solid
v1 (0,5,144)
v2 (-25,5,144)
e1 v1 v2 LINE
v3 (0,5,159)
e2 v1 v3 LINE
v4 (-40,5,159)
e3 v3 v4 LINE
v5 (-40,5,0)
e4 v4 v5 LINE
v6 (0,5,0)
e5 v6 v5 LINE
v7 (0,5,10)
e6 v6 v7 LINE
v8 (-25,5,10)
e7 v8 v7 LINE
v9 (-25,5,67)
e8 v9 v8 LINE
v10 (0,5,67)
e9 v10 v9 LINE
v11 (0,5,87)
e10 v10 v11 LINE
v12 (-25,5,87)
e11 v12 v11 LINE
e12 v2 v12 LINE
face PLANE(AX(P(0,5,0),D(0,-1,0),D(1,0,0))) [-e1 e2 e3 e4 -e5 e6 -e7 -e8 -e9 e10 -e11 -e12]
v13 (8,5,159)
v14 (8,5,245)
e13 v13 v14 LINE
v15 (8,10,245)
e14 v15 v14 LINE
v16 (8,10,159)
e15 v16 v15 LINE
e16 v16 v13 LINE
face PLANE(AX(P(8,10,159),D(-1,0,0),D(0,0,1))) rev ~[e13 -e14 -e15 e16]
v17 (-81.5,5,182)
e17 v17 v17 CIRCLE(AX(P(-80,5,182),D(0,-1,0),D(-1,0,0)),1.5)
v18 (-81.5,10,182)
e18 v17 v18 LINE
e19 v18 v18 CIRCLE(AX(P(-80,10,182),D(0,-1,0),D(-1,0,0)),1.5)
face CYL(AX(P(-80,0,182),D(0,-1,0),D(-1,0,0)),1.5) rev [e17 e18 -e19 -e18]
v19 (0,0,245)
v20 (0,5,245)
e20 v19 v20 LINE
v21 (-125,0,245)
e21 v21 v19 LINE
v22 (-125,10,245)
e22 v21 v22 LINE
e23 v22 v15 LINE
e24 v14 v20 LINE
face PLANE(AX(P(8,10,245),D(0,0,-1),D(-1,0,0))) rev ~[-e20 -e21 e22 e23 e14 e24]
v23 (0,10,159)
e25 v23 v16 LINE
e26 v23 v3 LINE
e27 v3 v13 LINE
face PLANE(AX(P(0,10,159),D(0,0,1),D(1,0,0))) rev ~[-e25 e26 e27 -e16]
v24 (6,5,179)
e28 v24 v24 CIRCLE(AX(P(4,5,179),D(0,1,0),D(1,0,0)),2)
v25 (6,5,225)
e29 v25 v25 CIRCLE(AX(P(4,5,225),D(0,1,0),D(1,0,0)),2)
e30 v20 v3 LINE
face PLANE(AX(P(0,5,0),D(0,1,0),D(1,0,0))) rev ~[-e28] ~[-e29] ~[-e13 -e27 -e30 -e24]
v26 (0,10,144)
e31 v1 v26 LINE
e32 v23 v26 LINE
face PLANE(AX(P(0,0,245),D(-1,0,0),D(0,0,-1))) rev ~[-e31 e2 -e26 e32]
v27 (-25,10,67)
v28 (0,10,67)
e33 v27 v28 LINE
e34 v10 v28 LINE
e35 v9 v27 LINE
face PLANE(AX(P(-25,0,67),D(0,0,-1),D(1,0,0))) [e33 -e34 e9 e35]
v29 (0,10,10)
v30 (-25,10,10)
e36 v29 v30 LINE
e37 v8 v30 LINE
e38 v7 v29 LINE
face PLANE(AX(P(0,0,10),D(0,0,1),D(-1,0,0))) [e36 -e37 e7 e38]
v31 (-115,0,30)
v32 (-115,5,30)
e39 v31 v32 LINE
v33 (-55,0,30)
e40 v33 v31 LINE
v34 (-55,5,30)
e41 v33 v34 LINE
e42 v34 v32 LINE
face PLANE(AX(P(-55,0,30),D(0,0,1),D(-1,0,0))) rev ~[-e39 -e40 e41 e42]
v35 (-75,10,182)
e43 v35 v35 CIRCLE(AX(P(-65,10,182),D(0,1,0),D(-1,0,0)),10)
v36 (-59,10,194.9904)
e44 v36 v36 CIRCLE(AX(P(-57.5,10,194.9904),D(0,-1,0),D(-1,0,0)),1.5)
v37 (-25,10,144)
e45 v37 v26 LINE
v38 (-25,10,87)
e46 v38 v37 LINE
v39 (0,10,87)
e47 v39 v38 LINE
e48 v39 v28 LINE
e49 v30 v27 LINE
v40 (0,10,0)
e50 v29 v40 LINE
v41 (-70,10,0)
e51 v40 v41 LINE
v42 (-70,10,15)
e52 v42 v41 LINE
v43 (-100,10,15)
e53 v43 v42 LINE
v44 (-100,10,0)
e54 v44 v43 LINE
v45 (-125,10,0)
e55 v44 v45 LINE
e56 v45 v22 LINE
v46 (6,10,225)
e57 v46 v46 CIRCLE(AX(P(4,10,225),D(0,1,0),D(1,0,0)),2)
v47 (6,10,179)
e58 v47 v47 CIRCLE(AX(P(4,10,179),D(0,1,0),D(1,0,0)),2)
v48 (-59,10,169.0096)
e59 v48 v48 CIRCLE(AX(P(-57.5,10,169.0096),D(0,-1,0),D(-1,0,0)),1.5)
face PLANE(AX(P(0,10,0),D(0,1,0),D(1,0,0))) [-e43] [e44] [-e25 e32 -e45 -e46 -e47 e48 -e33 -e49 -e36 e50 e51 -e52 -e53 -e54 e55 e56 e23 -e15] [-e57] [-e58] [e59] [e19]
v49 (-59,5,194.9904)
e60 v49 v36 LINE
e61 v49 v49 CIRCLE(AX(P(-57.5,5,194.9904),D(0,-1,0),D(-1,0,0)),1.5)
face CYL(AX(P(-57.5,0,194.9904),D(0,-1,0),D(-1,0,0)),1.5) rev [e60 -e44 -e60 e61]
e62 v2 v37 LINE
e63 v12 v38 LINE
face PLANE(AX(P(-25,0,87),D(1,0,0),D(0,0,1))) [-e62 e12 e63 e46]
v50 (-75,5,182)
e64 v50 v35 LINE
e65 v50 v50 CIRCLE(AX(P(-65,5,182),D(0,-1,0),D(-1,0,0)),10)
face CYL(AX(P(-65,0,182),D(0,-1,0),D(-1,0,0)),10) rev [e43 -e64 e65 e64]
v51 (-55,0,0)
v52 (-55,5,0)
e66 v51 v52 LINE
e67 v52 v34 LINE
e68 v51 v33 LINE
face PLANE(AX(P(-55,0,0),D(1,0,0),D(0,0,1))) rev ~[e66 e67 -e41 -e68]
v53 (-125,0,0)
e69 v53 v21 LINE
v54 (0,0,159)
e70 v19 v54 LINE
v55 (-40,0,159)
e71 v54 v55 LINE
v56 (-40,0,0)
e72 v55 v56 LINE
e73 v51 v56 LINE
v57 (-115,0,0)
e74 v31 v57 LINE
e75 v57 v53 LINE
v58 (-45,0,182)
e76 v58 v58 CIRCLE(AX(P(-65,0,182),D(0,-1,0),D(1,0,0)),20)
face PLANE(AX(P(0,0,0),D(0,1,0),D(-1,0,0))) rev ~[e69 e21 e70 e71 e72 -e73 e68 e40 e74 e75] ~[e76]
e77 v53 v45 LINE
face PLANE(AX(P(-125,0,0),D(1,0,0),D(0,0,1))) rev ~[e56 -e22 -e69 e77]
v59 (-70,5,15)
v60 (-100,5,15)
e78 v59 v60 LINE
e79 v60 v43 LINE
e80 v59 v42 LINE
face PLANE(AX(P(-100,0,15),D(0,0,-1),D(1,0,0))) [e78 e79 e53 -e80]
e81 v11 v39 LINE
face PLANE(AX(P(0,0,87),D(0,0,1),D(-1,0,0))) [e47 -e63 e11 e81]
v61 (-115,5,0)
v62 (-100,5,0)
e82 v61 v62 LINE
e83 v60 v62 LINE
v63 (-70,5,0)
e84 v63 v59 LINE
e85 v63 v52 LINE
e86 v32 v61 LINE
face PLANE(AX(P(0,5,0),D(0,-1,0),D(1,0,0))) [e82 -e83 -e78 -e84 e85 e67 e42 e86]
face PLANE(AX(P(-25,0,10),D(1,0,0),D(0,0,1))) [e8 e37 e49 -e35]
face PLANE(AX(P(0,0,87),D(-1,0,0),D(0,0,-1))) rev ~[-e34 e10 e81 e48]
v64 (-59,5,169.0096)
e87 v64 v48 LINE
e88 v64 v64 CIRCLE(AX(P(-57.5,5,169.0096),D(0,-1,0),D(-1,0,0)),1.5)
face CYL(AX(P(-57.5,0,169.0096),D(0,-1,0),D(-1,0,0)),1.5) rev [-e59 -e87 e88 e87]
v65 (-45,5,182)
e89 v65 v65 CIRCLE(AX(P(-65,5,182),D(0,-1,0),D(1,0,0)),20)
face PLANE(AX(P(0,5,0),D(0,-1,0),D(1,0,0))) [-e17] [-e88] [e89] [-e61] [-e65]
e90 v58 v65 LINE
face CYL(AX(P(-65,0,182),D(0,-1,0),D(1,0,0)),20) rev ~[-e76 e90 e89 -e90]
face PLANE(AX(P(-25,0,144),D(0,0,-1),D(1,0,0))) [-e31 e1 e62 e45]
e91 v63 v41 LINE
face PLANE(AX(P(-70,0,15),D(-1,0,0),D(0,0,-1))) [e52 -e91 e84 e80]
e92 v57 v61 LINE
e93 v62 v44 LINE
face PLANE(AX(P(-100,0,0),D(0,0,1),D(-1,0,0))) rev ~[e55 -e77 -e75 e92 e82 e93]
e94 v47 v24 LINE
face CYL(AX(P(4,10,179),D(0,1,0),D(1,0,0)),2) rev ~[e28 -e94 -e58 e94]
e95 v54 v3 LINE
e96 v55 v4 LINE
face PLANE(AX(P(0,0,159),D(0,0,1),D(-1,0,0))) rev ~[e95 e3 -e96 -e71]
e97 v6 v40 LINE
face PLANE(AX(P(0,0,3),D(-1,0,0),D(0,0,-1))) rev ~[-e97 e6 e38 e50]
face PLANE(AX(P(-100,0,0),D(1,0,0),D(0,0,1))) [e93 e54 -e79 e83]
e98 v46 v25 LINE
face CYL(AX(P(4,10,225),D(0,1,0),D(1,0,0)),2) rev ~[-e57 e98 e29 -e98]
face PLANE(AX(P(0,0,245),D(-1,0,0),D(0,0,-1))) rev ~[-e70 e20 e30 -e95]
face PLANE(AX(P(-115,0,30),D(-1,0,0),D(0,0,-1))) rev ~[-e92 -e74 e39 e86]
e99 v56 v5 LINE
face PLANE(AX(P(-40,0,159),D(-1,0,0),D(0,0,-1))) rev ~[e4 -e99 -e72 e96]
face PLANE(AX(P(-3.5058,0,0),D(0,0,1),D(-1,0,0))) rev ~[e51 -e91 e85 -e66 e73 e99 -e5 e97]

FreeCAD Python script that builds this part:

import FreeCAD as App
import Part
import Sketcher
from FreeCAD import Vector
Q = App.Units.Quantity

doc = App.newDocument("Part")
body = doc.addObject("PartDesign::Body", "Body")

sketch1 = body.newObject("Sketcher::SketchObject", "Sketch")
sketch1.AttachmentSupport = (doc.getObject("XZ_Plane"), [""])
sketch1.MapMode = "FlatFace"
sketch1.addGeometry(Part.LineSegment(Vector(-125, 0, 0), Vector(-125, 245, 0)), False)
sketch1.addGeometry(Part.LineSegment(Vector(-125, 245, 0), Vector(0, 245, 0)), False)
sketch1.addGeometry(Part.LineSegment(Vector(0, 245, 0), Vector(0, 144, 0)), False)
sketch1.addGeometry(Part.LineSegment(Vector(0, 144, 0), Vector(-25, 144, 0)), False)
sketch1.addGeometry(Part.LineSegment(Vector(-25, 144, 0), Vector(-25, 87, 0)), False)
sketch1.addGeometry(Part.LineSegment(Vector(-25, 87, 0), Vector(0, 87, 0)), False)
sketch1.addGeometry(Part.LineSegment(Vector(0, 87, 0), Vector(0, 67, 0)), False)
sketch1.addGeometry(Part.LineSegment(Vector(0, 67, 0), Vector(-25, 67, 0)), False)
sketch1.addGeometry(Part.LineSegment(Vector(-25, 67, 0), Vector(-25, 10, 0)), False)
sketch1.addGeometry(Part.LineSegment(Vector(-25, 10, 0), Vector(0, 10, 0)), False)
sketch1.addGeometry(Part.LineSegment(Vector(0, 10, 0), Vector(0, 0, 0)), False)
sketch1.addGeometry(Part.LineSegment(Vector(0, 0, 0), Vector(-70, 0, 0)), False)
sketch1.addGeometry(Part.LineSegment(Vector(-70, 0, 0), Vector(-70, 15, 0)), False)
sketch1.addGeometry(Part.LineSegment(Vector(-70, 15, 0), Vector(-100, 15, 0)), False)
sketch1.addGeometry(Part.LineSegment(Vector(-100, 15, 0), Vector(-100, 0, 0)), False)
sketch1.addGeometry(Part.LineSegment(Vector(-100, 0, 0), Vector(-125, 0, 0)), False)
sketch1.addGeometry(Part.Circle(Vector(-57.5, 195, 0), Vector(0, 0, 1), 1.5), False)
sketch1.addGeometry(Part.Circle(Vector(-57.5, 169, 0), Vector(0, 0, 1), 1.5), False)
sketch1.addGeometry(Part.Circle(Vector(-80, 182, 0), Vector(0, 0, 1), 1.5), False)
sketch1.addGeometry(Part.Circle(Vector(-65, 182, 0), Vector(0, 0, 1), 10), False)
sketch1.addConstraint(Sketcher.Constraint("Coincident", 0, 2, 1, 1))
sketch1.addConstraint(Sketcher.Constraint("Coincident", 1, 2, 2, 1))
sketch1.addConstraint(Sketcher.Constraint("Coincident", 2, 2, 3, 1))
sketch1.addConstraint(Sketcher.Constraint("Coincident", 3, 2, 4, 1))
sketch1.addConstraint(Sketcher.Constraint("Coincident", 4, 2, 5, 1))
sketch1.addConstraint(Sketcher.Constraint("Coincident", 5, 2, 6, 1))
sketch1.addConstraint(Sketcher.Constraint("Coincident", 6, 2, 7, 1))
sketch1.addConstraint(Sketcher.Constraint("Coincident", 7, 2, 8, 1))
sketch1.addConstraint(Sketcher.Constraint("Coincident", 8, 2, 9, 1))
sketch1.addConstraint(Sketcher.Constraint("Coincident", 9, 2, 10, 1))
sketch1.addConstraint(Sketcher.Constraint("Coincident", 10, 2, 11, 1))
sketch1.addConstraint(Sketcher.Constraint("Coincident", 11, 2, 12, 1))
sketch1.addConstraint(Sketcher.Constraint("Coincident", 12, 2, 13, 1))
sketch1.addConstraint(Sketcher.Constraint("Coincident", 13, 2, 14, 1))
sketch1.addConstraint(Sketcher.Constraint("Coincident", 14, 2, 15, 1))
sketch1.addConstraint(Sketcher.Constraint("Coincident", 15, 2, 0, 1))
sketch1.addConstraint(Sketcher.Constraint("Vertical", 0))
sketch1.addConstraint(Sketcher.Constraint("Horizontal", 1))
sketch1.addConstraint(Sketcher.Constraint("Vertical", 2))
sketch1.addConstraint(Sketcher.Constraint("Horizontal", 3))
sketch1.addConstraint(Sketcher.Constraint("Vertical", 4))
sketch1.addConstraint(Sketcher.Constraint("Horizontal", 5))
sketch1.addConstraint(Sketcher.Constraint("Vertical", 6))
sketch1.addConstraint(Sketcher.Constraint("Horizontal", 7))
sketch1.addConstraint(Sketcher.Constraint("Vertical", 8))
sketch1.addConstraint(Sketcher.Constraint("Horizontal", 9))
sketch1.addConstraint(Sketcher.Constraint("Vertical", 10))
sketch1.addConstraint(Sketcher.Constraint("Horizontal", 11))
sketch1.addConstraint(Sketcher.Constraint("Vertical", 12))
sketch1.addConstraint(Sketcher.Constraint("Horizontal", 13))
sketch1.addConstraint(Sketcher.Constraint("Vertical", 14))
sketch1.addConstraint(Sketcher.Constraint("Horizontal", 15))
sketch1.addConstraint(Sketcher.Constraint("Coincident", 10, 2, -1, 1))
sketch1.addConstraint(Sketcher.Constraint("Equal", 16, 17))
sketch1.addConstraint(Sketcher.Constraint("Equal", 17, 18))
sketch1.addConstraint(Sketcher.Constraint("PointOnObject", 1, 2, -2))
sketch1.addConstraint(Sketcher.Constraint("PointOnObject", 5, 2, -2))
sketch1.addConstraint(Sketcher.Constraint("PointOnObject", 14, 2, -1))
sketch1.addConstraint(Sketcher.Constraint("Horizontal", 18, 3, 19, 3))
sketch1.addConstraint(Sketcher.Constraint("Vertical", 16, 3, 17, 3))
sketch1.addConstraint(Sketcher.Constraint("Vertical", 4, 2, 7, 2))
sketch1.addConstraint(Sketcher.Constraint("Equal", 9, 15))
sketch1.addConstraint(Sketcher.Constraint("Equal", 4, 8))
sketch1.addConstraint(Sketcher.Constraint("Diameter", 16, Q("3 mm")))
sketch1.addConstraint(Sketcher.Constraint("Diameter", 19, Q("20 mm")))
sketch1.addConstraint(Sketcher.Constraint("DistanceX", 3, 2, 3, 1, Q("25 mm")))
sketch1.addConstraint(Sketcher.Constraint("DistanceX", 13, 2, 13, 1, Q("30 mm")))
sketch1.addConstraint(Sketcher.Constraint("DistanceY", 2, 2, 2, 1, Q("101 mm")))
sketch1.addConstraint(Sketcher.Constraint("DistanceY", 4, 2, 4, 1, Q("57 mm")))
sketch1.addConstraint(Sketcher.Constraint("DistanceY", 6, 2, 6, 1, Q("20 mm")))
sketch1.addConstraint(Sketcher.Constraint("DistanceY", 18, 3, 0, 2, Q("63 mm")))
sketch1.addConstraint(Sketcher.Constraint("DistanceX", 0, 2, 19, 3, Q("60 mm")))
sketch1.addConstraint(Sketcher.Constraint("DistanceX", 1, 1, 1, 2, Q("125 mm")))
sketch1.addConstraint(Sketcher.Constraint("DistanceY", 0, 1, 0, 2, Q("245 mm")))
sketch1.addConstraint(Sketcher.Constraint("DistanceY", 12, 1, 12, 2, Q("15 mm")))
sketch1.addConstraint(Sketcher.Constraint("DistanceX", 18, 3, -1, 1, Q("80 mm")))
sketch1.addConstraint(Sketcher.Constraint("DistanceX", 16, 3, -1, 1, Q("57.5 mm")))
sketch1.addConstraint(Sketcher.Constraint("DistanceY", -1, 1, 16, 3, Q("194.9904 mm")))
sketch1.addConstraint(Sketcher.Constraint("DistanceY", -1, 1, 17, 3, Q("169.0096 mm")))
pad1 = body.newObject("PartDesign::Pad", "Pad")
pad1.Profile = sketch1
pad1.Length = 10
pad1.Reversed = True

sketch2 = body.newObject("Sketcher::SketchObject", "Sketch001")
sketch2.AttachmentSupport = (doc.getObject("XZ_Plane"), [""])
sketch2.MapMode = "FlatFace"
sketch2.addGeometry(Part.LineSegment(Vector(-40, 159, 0), Vector(-40, 0, 0)), False)
sketch2.addGeometry(Part.LineSegment(Vector(-40, 0, 0), Vector(0, 0, 0)), False)
sketch2.addGeometry(Part.LineSegment(Vector(0, 0, 0), Vector(0, 159, 0)), False)
sketch2.addGeometry(Part.LineSegment(Vector(0, 159, 0), Vector(-40, 159, 0)), False)
sketch2.addGeometry(Part.LineSegment(Vector(-115, 0, 0), Vector(-55, 0, 0)), False)
sketch2.addGeometry(Part.LineSegment(Vector(-55, 0, 0), Vector(-55, 30, 0)), False)
sketch2.addGeometry(Part.LineSegment(Vector(-55, 30, 0), Vector(-115, 30, 0)), False)
sketch2.addGeometry(Part.LineSegment(Vector(-115, 30, 0), Vector(-115, 0, 0)), False)
sketch2.addGeometry(Part.Circle(Vector(-65, 182, 0), Vector(0, 0, 1), 20), False)
sketch2.addGeometry(Part.Circle(Vector(-65, 182, 0), Vector(0, 0, 1), 10), False)
sketch2.addConstraint(Sketcher.Constraint("Coincident", 0, 2, 1, 1))
sketch2.addConstraint(Sketcher.Constraint("Coincident", 1, 2, 2, 1))
sketch2.addConstraint(Sketcher.Constraint("Coincident", 2, 2, 3, 1))
sketch2.addConstraint(Sketcher.Constraint("Coincident", 3, 2, 0, 1))
sketch2.addConstraint(Sketcher.Constraint("Coincident", 4, 2, 5, 1))
sketch2.addConstraint(Sketcher.Constraint("Coincident", 5, 2, 6, 1))
sketch2.addConstraint(Sketcher.Constraint("Coincident", 6, 2, 7, 1))
sketch2.addConstraint(Sketcher.Constraint("Coincident", 7, 2, 4, 1))
sketch2.addConstraint(Sketcher.Constraint("Vertical", 0))
sketch2.addConstraint(Sketcher.Constraint("Horizontal", 1))
sketch2.addConstraint(Sketcher.Constraint("Vertical", 2))
sketch2.addConstraint(Sketcher.Constraint("Horizontal", 3))
sketch2.addConstraint(Sketcher.Constraint("Horizontal", 4))
sketch2.addConstraint(Sketcher.Constraint("Vertical", 5))
sketch2.addConstraint(Sketcher.Constraint("Horizontal", 6))
sketch2.addConstraint(Sketcher.Constraint("Vertical", 7))
sketch2.addConstraint(Sketcher.Constraint("Coincident", 1, 2, -1, 1))
sketch2.addConstraint(Sketcher.Constraint("Coincident", 9, 3, 8, 3))
sketch2.addConstraint(Sketcher.Constraint("PointOnObject", 4, 2, -1))
sketch2.addConstraint(Sketcher.Constraint("Diameter", 8, Q("40 mm")))
sketch2.addConstraint(Sketcher.Constraint("DistanceX", 1, 1, 1, 2, Q("40 mm")))
sketch2.addConstraint(Sketcher.Constraint("DistanceX", 4, 1, 4, 2, Q("60 mm")))
sketch2.addConstraint(Sketcher.Constraint("DistanceY", 5, 1, 5, 2, Q("30 mm")))
sketch2.addConstraint(Sketcher.Constraint("Diameter", 9, Q("20 mm")))
sketch2.addConstraint(Sketcher.Constraint("DistanceX", 4, 2, 0, 2, Q("15 mm")))
sketch2.addConstraint(Sketcher.Constraint("DistanceY", 0, 2, 0, 1, Q("159 mm")))
sketch2.addConstraint(Sketcher.Constraint("DistanceX", 8, 3, -1, 1, Q("65 mm")))
sketch2.addConstraint(Sketcher.Constraint("DistanceY", -1, 1, 8, 3, Q("182 mm")))
pocket1 = body.newObject("PartDesign::Pocket", "Pocket")
pocket1.Profile = sketch2
pocket1.Length = 5

sketch3 = body.newObject("Sketcher::SketchObject", "Sketch002")
sketch3.AttachmentSupport = (doc.getObject("XZ_Plane"), [""])
sketch3.MapMode = "FlatFace"
sketch3.AttachmentOffset = App.Placement(Vector(0, 0, -10), App.Rotation())
sketch3.addGeometry(Part.LineSegment(Vector(8, 159, 0), Vector(0, 159, 0)), False)
sketch3.addGeometry(Part.LineSegment(Vector(0, 159, 0), Vector(0, 245, 0)), False)
sketch3.addGeometry(Part.LineSegment(Vector(0, 245, 0), Vector(8, 245, 0)), False)
sketch3.addGeometry(Part.LineSegment(Vector(8, 245, 0), Vector(8, 159, 0)), False)
sketch3.addGeometry(Part.Circle(Vector(4, 225, 0), Vector(0, 0, 1), 2), False)
sketch3.addGeometry(Part.Circle(Vector(4, 179, 0), Vector(0, 0, 1), 2), False)
sketch3.addConstraint(Sketcher.Constraint("Coincident", 0, 2, 1, 1))
sketch3.addConstraint(Sketcher.Constraint("Coincident", 1, 2, 2, 1))
sketch3.addConstraint(Sketcher.Constraint("Coincident", 2, 2, 3, 1))
sketch3.addConstraint(Sketcher.Constraint("Coincident", 3, 2, 0, 1))
sketch3.addConstraint(Sketcher.Constraint("Horizontal", 0))
sketch3.addConstraint(Sketcher.Constraint("Vertical", 1))
sketch3.addConstraint(Sketcher.Constraint("Horizontal", 2))
sketch3.addConstraint(Sketcher.Constraint("Vertical", 3))
sketch3.addConstraint(Sketcher.Constraint("Equal", 4, 5))
sketch3.addConstraint(Sketcher.Constraint("PointOnObject", 0, 2, -2))
sketch3.addConstraint(Sketcher.Constraint("Vertical", 4, 3, 5, 3))
sketch3.addConstraint(Sketcher.Constraint("Diameter", 4, Q("4 mm")))
sketch3.addConstraint(Sketcher.Constraint("DistanceX", 0, 2, 0, 1, Q("8 mm")))
sketch3.addConstraint(Sketcher.Constraint("DistanceX", -1, 1, 4, 3, Q("4 mm")))
sketch3.addConstraint(Sketcher.Constraint("DistanceY", 0, 2, 5, 3, Q("20 mm")))
sketch3.addConstraint(Sketcher.Constraint("DistanceY", 4, 3, 1, 2, Q("20 mm")))
sketch3.addConstraint(Sketcher.Constraint("DistanceY", 1, 1, 1, 2, Q("86 mm")))
sketch3.addConstraint(Sketcher.Constraint("DistanceY", -1, 1, 4, 3, Q("225 mm")))
pad2 = body.newObject("PartDesign::Pad", "Pad001")
pad2.Profile = sketch3
pad2.Length = 5

doc.recompute()
